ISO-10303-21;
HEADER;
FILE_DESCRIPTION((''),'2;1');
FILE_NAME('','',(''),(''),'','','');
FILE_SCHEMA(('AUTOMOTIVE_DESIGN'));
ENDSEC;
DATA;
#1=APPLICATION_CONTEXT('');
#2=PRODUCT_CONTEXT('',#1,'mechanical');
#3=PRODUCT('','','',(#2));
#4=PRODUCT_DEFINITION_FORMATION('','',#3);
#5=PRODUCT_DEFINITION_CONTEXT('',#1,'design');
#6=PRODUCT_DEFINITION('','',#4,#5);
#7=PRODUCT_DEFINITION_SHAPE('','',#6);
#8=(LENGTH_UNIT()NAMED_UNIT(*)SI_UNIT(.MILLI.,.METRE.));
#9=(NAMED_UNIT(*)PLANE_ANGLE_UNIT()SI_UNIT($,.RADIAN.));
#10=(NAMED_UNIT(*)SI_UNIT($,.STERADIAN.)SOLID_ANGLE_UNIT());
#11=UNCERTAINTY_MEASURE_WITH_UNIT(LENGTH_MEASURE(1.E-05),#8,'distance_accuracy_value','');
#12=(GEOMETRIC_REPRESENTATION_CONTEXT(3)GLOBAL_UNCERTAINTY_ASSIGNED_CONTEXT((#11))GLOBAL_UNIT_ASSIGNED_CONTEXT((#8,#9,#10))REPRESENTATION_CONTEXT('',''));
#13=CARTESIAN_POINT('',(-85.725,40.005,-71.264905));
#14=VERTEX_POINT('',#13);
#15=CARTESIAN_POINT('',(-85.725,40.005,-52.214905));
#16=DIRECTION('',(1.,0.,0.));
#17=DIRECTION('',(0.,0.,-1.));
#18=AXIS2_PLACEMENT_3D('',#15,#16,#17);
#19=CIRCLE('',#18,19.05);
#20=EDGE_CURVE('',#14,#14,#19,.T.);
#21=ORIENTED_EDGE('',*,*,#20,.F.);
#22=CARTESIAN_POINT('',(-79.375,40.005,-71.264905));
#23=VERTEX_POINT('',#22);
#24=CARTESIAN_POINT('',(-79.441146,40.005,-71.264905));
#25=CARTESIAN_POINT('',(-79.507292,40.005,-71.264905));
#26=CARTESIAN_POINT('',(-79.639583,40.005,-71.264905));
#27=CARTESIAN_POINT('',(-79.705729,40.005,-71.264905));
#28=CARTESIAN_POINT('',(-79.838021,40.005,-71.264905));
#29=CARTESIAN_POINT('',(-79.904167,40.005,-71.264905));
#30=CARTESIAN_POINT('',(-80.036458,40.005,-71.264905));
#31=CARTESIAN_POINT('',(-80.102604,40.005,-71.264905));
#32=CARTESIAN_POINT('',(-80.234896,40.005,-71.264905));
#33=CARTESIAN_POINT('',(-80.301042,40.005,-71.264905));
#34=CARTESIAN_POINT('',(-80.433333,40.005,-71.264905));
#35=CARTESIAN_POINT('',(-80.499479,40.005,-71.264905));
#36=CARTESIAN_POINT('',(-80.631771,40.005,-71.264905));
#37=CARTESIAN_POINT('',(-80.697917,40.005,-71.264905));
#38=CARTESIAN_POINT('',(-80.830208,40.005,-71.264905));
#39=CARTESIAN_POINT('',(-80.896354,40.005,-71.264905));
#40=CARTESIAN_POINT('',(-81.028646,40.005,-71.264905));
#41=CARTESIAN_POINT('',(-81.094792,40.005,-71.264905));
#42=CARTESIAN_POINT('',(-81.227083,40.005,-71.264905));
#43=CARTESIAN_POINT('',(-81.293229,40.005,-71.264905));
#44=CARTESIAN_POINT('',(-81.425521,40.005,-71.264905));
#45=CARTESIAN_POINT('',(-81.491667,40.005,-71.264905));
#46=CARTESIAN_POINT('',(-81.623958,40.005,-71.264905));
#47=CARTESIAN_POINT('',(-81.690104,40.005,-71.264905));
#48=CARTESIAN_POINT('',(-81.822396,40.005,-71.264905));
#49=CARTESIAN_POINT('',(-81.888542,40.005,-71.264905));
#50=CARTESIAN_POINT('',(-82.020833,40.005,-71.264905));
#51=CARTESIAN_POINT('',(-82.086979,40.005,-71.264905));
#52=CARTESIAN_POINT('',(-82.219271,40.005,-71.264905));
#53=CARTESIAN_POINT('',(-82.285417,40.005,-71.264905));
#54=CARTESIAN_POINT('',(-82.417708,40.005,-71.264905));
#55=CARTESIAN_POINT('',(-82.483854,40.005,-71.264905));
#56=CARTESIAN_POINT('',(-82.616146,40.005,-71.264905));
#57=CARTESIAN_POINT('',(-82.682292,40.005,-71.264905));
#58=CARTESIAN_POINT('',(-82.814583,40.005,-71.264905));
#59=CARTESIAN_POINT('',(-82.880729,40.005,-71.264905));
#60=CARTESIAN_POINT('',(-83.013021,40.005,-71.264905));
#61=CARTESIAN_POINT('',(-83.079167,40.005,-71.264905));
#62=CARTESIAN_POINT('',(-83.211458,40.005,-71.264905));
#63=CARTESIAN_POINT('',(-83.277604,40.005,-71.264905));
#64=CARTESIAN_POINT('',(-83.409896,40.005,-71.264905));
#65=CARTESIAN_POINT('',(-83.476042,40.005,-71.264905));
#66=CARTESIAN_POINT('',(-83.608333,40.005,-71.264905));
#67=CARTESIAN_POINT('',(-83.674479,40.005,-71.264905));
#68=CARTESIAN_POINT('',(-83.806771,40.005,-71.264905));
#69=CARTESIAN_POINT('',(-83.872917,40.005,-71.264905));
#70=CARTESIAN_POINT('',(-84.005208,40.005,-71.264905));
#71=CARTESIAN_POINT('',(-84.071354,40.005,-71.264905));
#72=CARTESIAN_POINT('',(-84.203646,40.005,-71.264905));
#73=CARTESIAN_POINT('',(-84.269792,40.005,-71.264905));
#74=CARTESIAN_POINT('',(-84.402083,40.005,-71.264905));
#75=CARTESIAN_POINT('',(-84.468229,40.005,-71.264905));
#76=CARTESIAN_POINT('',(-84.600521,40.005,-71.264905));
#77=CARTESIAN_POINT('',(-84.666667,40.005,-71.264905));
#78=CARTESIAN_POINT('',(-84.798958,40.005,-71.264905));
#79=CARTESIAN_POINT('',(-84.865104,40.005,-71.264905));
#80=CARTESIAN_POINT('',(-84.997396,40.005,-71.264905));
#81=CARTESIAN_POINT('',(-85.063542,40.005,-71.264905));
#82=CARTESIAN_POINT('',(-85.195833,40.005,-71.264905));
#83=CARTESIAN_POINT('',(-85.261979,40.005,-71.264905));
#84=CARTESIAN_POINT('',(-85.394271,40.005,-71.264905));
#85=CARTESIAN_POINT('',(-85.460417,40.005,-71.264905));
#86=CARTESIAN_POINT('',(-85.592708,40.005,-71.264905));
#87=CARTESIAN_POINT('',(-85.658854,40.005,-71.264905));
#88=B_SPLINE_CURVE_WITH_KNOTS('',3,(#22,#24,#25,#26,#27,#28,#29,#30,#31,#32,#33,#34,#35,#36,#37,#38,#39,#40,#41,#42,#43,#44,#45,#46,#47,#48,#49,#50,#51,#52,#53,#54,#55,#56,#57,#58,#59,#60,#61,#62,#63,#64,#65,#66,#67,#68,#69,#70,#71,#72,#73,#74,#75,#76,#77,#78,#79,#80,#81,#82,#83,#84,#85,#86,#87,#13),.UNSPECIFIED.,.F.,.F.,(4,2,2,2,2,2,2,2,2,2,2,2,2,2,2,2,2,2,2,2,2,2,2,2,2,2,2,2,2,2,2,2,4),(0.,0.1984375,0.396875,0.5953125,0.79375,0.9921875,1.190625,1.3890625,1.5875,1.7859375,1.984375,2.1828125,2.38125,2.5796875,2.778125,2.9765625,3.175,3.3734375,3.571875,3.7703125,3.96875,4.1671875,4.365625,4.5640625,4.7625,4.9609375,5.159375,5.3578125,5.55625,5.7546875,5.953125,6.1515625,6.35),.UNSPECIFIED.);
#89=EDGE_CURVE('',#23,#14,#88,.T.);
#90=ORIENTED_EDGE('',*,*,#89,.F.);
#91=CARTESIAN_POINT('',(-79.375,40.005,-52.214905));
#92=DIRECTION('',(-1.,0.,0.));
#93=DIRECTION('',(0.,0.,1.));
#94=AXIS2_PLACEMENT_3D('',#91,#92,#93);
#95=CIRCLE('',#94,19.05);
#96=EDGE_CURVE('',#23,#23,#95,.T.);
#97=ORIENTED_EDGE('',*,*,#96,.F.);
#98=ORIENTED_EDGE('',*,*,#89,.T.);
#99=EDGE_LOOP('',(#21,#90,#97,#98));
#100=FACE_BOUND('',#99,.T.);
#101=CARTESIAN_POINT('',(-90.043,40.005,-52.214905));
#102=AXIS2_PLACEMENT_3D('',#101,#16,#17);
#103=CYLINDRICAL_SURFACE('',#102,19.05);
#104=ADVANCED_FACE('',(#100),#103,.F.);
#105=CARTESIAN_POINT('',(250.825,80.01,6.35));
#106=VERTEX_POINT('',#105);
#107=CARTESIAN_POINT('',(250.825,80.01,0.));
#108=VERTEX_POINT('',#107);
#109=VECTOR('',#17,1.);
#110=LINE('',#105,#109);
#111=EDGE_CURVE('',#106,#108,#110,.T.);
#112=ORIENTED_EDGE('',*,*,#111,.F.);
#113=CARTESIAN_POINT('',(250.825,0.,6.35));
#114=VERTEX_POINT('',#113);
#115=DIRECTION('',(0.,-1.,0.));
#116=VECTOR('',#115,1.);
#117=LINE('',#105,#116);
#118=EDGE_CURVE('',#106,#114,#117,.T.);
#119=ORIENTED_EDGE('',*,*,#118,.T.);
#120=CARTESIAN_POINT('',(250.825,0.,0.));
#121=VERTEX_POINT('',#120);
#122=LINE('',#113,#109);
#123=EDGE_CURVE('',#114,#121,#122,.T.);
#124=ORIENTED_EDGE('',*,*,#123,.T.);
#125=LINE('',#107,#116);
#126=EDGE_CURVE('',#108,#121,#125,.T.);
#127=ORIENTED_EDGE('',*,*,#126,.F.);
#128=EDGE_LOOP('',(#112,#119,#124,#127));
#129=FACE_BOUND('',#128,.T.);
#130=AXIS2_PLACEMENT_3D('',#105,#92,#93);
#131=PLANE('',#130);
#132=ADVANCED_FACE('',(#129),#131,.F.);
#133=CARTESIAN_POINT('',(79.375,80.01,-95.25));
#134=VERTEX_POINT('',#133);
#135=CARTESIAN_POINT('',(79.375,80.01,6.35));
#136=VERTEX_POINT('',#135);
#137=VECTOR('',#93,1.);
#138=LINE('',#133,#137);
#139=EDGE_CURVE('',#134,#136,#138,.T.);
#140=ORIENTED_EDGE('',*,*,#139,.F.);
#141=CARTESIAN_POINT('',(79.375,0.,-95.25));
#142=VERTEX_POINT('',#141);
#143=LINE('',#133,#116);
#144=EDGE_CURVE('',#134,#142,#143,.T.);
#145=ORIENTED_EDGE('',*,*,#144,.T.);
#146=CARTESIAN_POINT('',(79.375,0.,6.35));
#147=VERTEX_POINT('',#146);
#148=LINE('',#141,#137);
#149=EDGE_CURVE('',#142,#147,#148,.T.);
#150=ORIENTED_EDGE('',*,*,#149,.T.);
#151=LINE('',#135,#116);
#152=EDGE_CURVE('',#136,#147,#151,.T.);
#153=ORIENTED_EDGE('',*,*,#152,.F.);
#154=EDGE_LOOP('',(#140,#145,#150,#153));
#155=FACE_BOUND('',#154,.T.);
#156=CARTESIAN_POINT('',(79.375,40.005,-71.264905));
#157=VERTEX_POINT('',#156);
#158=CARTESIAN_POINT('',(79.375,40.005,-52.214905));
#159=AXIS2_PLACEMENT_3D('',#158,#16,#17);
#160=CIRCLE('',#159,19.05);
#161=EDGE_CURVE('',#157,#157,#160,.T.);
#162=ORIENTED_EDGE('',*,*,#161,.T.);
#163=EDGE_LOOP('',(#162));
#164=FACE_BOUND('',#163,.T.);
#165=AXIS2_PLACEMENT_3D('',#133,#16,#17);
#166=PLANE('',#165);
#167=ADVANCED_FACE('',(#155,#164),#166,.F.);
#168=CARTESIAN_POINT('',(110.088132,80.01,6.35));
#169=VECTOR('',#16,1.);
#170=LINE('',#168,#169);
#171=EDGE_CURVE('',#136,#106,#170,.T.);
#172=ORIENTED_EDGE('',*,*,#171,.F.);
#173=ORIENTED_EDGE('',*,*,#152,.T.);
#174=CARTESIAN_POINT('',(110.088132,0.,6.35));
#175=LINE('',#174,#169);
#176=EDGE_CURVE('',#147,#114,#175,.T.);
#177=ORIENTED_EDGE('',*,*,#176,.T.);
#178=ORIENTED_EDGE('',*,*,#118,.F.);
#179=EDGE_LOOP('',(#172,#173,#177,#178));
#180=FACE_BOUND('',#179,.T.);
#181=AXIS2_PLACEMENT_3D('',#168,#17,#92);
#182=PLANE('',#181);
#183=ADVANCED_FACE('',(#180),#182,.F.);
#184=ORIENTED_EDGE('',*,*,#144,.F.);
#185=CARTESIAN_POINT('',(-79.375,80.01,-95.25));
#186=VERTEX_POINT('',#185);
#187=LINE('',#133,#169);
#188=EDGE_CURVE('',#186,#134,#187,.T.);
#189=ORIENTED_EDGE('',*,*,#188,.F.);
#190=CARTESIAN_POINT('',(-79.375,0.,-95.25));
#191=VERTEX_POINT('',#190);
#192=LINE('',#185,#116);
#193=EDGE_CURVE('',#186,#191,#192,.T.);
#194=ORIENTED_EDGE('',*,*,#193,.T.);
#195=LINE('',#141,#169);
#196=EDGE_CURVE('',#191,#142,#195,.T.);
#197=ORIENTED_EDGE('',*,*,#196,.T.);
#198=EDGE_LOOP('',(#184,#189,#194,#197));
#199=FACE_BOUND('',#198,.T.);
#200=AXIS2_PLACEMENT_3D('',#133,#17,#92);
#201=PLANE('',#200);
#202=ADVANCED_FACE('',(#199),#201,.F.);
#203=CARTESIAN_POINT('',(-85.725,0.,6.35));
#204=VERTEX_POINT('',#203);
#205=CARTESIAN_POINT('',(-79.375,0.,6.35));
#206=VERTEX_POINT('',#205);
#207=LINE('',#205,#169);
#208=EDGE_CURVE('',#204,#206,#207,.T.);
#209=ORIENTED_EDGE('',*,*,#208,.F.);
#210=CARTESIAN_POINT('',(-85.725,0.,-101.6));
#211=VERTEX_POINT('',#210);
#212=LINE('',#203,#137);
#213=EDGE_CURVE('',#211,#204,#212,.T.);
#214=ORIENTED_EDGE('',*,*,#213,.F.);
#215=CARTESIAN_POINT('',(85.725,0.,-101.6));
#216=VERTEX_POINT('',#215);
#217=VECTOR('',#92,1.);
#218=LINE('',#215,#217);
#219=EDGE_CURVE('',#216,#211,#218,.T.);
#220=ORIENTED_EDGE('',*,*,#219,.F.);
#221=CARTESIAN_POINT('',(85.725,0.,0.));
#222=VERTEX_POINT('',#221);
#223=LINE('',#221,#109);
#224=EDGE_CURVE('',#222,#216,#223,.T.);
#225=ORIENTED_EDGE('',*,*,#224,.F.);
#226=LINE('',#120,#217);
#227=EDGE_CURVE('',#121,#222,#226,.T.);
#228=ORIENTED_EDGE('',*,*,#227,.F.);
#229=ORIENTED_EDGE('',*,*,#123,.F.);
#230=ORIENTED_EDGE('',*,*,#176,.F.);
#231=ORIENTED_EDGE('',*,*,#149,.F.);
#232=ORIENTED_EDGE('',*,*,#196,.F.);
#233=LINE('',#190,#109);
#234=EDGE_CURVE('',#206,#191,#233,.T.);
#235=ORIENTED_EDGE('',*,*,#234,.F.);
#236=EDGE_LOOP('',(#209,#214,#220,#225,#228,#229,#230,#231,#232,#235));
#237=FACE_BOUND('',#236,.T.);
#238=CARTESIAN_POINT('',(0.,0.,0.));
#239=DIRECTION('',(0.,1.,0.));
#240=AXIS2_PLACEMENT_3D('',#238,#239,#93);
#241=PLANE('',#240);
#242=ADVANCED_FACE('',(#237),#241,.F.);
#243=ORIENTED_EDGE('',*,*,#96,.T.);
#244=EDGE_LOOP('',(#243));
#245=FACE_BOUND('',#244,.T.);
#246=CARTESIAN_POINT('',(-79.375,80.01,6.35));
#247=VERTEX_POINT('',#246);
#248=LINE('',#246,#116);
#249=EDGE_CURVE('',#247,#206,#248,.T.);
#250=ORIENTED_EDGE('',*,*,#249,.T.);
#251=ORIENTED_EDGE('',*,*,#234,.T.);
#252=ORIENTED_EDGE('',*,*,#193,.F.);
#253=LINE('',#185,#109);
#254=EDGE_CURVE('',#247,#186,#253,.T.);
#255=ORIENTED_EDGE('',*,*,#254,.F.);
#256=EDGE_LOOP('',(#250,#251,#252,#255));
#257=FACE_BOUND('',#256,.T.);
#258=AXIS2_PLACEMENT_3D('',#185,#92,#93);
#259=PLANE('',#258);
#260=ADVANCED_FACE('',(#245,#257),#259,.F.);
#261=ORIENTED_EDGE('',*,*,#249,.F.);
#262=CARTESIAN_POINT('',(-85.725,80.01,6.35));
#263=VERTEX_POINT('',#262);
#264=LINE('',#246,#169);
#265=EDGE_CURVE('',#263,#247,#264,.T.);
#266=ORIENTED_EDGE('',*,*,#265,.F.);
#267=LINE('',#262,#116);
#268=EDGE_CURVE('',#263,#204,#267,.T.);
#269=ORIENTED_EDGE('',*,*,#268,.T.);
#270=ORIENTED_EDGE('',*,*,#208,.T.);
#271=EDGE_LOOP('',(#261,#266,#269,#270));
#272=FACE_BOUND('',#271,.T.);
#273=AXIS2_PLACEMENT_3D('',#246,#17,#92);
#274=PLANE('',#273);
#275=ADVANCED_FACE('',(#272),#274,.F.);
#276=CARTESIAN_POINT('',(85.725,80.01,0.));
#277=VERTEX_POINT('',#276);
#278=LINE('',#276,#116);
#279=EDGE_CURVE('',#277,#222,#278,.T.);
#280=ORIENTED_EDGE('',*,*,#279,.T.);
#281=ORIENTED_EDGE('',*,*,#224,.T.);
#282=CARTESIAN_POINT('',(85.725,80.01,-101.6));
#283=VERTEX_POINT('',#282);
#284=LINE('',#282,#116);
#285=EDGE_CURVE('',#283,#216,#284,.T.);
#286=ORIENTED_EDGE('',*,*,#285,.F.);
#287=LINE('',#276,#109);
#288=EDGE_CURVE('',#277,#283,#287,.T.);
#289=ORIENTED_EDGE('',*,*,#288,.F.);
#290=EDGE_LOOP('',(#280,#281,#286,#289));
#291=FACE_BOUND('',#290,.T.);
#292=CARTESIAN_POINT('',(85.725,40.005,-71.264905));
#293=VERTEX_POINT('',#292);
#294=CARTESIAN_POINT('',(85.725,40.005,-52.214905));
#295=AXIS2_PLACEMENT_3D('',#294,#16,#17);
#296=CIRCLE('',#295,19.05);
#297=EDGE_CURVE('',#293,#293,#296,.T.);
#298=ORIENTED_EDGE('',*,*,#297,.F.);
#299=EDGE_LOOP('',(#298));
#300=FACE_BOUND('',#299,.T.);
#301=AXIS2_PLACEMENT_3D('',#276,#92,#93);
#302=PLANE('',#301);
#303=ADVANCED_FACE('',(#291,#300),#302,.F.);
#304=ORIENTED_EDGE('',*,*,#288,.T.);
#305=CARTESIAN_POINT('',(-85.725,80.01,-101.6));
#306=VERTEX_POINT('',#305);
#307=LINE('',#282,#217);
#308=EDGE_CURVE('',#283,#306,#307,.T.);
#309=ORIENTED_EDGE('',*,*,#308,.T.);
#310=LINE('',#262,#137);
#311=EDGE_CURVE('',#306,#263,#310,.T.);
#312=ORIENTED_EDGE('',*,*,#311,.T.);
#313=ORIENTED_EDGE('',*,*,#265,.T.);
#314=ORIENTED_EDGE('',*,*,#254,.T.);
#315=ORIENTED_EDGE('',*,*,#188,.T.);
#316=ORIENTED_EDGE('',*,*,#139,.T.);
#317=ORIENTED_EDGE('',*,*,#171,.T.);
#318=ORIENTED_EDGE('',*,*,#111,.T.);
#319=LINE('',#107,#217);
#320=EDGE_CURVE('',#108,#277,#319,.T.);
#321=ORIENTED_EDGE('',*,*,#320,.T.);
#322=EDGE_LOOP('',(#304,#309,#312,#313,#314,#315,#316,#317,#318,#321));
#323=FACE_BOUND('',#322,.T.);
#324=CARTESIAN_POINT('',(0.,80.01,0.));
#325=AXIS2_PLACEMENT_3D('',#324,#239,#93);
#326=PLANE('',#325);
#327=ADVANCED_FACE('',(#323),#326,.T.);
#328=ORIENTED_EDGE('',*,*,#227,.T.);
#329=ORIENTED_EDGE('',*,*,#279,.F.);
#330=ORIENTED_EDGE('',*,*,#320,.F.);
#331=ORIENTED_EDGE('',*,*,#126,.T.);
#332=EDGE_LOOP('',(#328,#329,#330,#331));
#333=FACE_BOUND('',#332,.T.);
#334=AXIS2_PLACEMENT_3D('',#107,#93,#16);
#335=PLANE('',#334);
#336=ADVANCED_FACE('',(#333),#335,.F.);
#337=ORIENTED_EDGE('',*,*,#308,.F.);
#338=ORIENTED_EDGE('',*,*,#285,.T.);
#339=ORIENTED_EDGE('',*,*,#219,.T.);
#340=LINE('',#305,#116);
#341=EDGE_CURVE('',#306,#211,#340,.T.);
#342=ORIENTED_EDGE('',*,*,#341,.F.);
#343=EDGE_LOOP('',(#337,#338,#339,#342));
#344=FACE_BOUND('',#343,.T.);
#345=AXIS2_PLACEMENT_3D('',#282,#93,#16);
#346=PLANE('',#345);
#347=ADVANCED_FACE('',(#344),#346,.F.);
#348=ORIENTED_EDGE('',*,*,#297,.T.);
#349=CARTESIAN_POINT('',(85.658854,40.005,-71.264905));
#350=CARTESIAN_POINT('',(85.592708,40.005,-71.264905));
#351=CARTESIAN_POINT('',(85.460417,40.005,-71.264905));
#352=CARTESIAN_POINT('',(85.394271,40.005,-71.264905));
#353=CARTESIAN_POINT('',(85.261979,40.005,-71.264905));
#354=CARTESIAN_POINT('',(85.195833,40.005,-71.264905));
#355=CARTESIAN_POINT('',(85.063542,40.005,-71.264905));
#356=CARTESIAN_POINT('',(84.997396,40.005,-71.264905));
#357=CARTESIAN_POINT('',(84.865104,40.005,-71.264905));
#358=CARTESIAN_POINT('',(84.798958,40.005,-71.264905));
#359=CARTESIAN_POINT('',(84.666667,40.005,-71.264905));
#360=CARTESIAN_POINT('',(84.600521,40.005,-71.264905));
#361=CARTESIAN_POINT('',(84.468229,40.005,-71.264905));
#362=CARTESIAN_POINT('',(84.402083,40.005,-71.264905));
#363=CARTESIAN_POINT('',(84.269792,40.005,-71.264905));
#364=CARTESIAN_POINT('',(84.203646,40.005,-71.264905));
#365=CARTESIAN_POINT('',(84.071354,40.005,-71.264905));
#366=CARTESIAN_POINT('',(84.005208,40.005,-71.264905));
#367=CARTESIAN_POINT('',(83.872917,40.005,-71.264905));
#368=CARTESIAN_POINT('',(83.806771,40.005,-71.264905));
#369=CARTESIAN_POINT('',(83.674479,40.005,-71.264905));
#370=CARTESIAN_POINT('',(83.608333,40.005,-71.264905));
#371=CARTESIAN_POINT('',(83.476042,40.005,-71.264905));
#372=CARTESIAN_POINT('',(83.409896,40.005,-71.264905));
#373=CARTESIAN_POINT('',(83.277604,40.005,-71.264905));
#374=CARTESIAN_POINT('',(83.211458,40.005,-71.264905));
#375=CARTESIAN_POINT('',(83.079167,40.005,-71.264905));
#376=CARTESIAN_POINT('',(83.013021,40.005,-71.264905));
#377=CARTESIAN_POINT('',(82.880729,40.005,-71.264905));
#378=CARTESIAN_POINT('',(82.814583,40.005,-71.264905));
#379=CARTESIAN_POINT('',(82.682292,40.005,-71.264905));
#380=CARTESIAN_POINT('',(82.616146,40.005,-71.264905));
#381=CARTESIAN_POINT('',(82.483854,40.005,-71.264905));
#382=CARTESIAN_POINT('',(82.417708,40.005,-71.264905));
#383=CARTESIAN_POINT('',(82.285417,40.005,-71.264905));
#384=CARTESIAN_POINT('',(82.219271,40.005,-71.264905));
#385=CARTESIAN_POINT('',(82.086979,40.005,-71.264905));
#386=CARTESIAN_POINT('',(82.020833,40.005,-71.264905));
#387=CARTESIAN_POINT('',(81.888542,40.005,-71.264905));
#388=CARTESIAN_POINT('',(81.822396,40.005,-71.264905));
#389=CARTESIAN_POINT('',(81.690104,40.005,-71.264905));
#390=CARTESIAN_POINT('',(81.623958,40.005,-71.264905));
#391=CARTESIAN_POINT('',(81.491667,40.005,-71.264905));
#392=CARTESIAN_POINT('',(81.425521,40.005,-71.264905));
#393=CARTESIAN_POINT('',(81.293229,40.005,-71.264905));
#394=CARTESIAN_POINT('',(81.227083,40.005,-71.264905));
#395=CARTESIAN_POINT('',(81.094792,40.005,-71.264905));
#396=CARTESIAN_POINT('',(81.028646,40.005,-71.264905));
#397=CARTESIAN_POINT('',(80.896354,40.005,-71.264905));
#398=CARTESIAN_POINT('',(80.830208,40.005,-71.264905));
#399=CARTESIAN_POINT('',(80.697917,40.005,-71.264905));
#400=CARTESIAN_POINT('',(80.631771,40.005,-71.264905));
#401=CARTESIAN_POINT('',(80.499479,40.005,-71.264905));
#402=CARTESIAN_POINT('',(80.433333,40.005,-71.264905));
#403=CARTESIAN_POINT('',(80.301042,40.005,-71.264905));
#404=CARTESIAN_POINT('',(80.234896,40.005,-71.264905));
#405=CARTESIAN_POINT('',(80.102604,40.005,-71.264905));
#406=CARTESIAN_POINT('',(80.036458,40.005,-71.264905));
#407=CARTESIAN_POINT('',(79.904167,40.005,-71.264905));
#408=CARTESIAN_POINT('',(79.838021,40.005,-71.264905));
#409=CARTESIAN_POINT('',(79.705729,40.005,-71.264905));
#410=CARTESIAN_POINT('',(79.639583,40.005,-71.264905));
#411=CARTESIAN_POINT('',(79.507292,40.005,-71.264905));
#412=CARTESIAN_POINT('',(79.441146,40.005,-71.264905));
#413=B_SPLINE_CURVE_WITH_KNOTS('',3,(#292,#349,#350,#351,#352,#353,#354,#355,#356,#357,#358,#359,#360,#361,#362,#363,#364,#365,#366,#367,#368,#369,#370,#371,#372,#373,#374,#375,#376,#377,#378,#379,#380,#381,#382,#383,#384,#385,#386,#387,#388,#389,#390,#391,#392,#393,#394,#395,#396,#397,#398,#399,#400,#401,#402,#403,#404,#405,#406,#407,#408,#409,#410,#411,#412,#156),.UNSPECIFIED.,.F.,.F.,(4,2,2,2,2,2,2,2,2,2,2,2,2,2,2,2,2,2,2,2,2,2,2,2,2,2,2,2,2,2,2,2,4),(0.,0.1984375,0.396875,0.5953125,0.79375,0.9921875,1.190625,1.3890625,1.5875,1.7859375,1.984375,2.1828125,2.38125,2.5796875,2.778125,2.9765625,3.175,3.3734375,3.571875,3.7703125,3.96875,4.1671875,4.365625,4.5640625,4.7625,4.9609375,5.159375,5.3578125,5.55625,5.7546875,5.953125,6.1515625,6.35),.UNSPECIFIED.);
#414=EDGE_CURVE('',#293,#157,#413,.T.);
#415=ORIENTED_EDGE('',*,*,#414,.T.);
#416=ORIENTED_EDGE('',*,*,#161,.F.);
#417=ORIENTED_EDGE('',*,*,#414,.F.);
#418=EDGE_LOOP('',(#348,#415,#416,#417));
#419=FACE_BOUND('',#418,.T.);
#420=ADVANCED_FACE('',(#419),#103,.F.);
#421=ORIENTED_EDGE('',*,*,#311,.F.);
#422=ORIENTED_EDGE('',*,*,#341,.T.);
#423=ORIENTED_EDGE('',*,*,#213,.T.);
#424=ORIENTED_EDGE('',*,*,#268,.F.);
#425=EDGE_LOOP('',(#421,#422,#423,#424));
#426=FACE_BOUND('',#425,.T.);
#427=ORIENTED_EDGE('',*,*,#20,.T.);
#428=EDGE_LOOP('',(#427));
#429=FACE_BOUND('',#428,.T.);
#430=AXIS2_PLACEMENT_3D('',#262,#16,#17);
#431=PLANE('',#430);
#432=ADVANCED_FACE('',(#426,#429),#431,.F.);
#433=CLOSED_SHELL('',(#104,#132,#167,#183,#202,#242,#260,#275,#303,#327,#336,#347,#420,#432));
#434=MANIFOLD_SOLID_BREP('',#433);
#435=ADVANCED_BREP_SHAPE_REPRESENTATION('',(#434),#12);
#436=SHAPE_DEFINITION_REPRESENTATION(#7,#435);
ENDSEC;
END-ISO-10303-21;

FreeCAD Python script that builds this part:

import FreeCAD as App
import Part
import Sketcher

V = App.Vector
Q = App.Units.Quantity


def add_polygon(sketch, points):
    """Adds a closed chain of lines whose ends are joined by coincident constraints."""
    first, n = sketch.GeometryCount, len(points)
    for a, b in zip(points, points[1:] + points[:1]):
        sketch.addGeometry(Part.LineSegment(App.Vector(*a, 0), App.Vector(*b, 0)), False)
    for i in range(n):
        sketch.addConstraint(Sketcher.Constraint("Coincident", first + i, 2, first + (i + 1) % n, 1))

doc = App.newDocument("Part")
body = doc.addObject("PartDesign::Body", "Body")

# Sketch on XZ plane
sketch1 = body.newObject("Sketcher::SketchObject", "Sketch")
sketch1.AttachmentSupport = (doc.getObject("XZ_Plane"), [""])
sketch1.MapMode = "FlatFace"
add_polygon(sketch1, [(86, 0), (86, -102), (-86, -102), (-86, 6), (-79, 6), (-79, -95), (79, -95), (79, 6), (251, 6), (251, 0)])  # lines 0-9
sketch1.addConstraint([
    Sketcher.Constraint("Vertical", 0),
    Sketcher.Constraint("Horizontal", 1),
    Sketcher.Constraint("Vertical", 2),
    Sketcher.Constraint("Horizontal", 3),
    Sketcher.Constraint("Vertical", 4),
    Sketcher.Constraint("Horizontal", 5),
    Sketcher.Constraint("Vertical", 6),
    Sketcher.Constraint("Horizontal", 7),
    Sketcher.Constraint("Vertical", 8),
    Sketcher.Constraint("Horizontal", 9),
    Sketcher.Constraint("Symmetric", 3, 2, 6, 2, -2),
    Sketcher.Constraint("PointOnObject", 8, 2, -1),
    Sketcher.Constraint("Equal", 1, 7),
    Sketcher.Constraint("Equal", 0, 4),
    Sketcher.Constraint("Equal", 3, 8),
    Sketcher.Constraint("DistanceY", 0, 2, 0, 1, Q("4 in")),
    Sketcher.Constraint("DistanceX", 9, 2, 9, 1, Q("6.5 in")),
    Sketcher.Constraint("DistanceX", 3, 2, 7, 2, Q("13 in")),
    Sketcher.Constraint("DistanceX", 1, 2, 1, 1, Q("6.75 in")),
])
pad1 = body.newObject("PartDesign::Pad", "Pad")
pad1.Profile = sketch1
pad1.Length = Q("3.15 in")
pad1.Reversed = True

# Sketch on YZ plane
sketch2 = body.newObject("Sketcher::SketchObject", "Sketch001")
sketch2.AttachmentSupport = (doc.getObject("YZ_Plane"), [""])
sketch2.MapMode = "FlatFace"
sketch2.AttachmentOffset = App.Placement(V(0, 0, 3.375 * 25.4), App.Rotation())
sketch2.addGeometry(Part.Circle(V(40, -52, 0), V(0, 0, 1), 19), False)
sketch2.addConstraint([
    Sketcher.Constraint("Diameter", 0, Q("1.5 in")),
    Sketcher.Constraint("DistanceX", -1, 1, 0, 3, Q("1.575 in")),
    Sketcher.Constraint("DistanceY", 0, 3, -1, 1, Q("52.214905 mm")),
])
pocket1 = body.newObject("PartDesign::Pocket", "Pocket")
pocket1.Profile = sketch2
pocket1.Length = Q("6.92 in")

doc.recompute()
